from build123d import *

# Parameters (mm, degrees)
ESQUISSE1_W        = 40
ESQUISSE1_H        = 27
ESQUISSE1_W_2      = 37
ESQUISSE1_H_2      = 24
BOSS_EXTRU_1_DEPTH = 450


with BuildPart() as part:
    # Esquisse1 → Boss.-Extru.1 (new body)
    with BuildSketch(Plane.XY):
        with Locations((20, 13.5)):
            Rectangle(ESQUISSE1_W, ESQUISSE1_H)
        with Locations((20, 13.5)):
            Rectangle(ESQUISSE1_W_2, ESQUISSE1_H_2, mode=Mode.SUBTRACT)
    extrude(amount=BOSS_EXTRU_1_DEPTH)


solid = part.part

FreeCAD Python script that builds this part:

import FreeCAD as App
import Part
import Sketcher
from FreeCAD import Vector
Q = App.Units.Quantity


def add_polygon(sketch, points):
    """Adds a closed chain of lines whose ends are joined by coincident constraints."""
    first, n = sketch.GeometryCount, len(points)
    for a, b in zip(points, points[1:] + points[:1]):
        sketch.addGeometry(Part.LineSegment(App.Vector(*a, 0), App.Vector(*b, 0)), False)
    for i in range(n):
        sketch.addConstraint(Sketcher.Constraint("Coincident", first + i, 2, first + (i + 1) % n, 1))

doc = App.newDocument("Part")
body = doc.addObject("PartDesign::Body", "Body")

# Sketch on XY plane
sketch1 = body.newObject("Sketcher::SketchObject", "Sketch")
sketch1.AttachmentSupport = (doc.getObject("XY_Plane"), [""])
sketch1.MapMode = "FlatFace"
add_polygon(sketch1, [(0, 27), (0, 0), (40, 0), (40, 27)])  # lines 0-3
add_polygon(sketch1, [(38, 2), (2, 2), (2, 26), (38, 26)])  # lines 4-7
sketch1.addConstraint(Sketcher.Constraint("Vertical", 0))
sketch1.addConstraint(Sketcher.Constraint("Horizontal", 1))
sketch1.addConstraint(Sketcher.Constraint("Vertical", 2))
sketch1.addConstraint(Sketcher.Constraint("Horizontal", 3))
sketch1.addConstraint(Sketcher.Constraint("Horizontal", 4))
sketch1.addConstraint(Sketcher.Constraint("Vertical", 5))
sketch1.addConstraint(Sketcher.Constraint("Horizontal", 6))
sketch1.addConstraint(Sketcher.Constraint("Vertical", 7))
sketch1.addConstraint(Sketcher.Constraint("Coincident", 0, 2, -1, 1))
sketch1.addConstraint(Sketcher.Constraint("DistanceX", 1, 1, 1, 2, Q("40 mm")))
sketch1.addConstraint(Sketcher.Constraint("DistanceX", 4, 2, 4, 1, Q("37 mm")))
sketch1.addConstraint(Sketcher.Constraint("DistanceY", 0, 2, 0, 1, Q("27 mm")))
sketch1.addConstraint(Sketcher.Constraint("DistanceY", 5, 1, 5, 2, Q("24 mm")))
sketch1.addConstraint(Sketcher.Constraint("DistanceX", -1, 1, 4, 2, Q("1.5 mm")))
sketch1.addConstraint(Sketcher.Constraint("DistanceY", -1, 1, 4, 2, Q("1.5 mm")))
pad1 = body.newObject("PartDesign::Pad", "Pad")
pad1.Profile = sketch1
pad1.Length = 450

doc.recompute()
